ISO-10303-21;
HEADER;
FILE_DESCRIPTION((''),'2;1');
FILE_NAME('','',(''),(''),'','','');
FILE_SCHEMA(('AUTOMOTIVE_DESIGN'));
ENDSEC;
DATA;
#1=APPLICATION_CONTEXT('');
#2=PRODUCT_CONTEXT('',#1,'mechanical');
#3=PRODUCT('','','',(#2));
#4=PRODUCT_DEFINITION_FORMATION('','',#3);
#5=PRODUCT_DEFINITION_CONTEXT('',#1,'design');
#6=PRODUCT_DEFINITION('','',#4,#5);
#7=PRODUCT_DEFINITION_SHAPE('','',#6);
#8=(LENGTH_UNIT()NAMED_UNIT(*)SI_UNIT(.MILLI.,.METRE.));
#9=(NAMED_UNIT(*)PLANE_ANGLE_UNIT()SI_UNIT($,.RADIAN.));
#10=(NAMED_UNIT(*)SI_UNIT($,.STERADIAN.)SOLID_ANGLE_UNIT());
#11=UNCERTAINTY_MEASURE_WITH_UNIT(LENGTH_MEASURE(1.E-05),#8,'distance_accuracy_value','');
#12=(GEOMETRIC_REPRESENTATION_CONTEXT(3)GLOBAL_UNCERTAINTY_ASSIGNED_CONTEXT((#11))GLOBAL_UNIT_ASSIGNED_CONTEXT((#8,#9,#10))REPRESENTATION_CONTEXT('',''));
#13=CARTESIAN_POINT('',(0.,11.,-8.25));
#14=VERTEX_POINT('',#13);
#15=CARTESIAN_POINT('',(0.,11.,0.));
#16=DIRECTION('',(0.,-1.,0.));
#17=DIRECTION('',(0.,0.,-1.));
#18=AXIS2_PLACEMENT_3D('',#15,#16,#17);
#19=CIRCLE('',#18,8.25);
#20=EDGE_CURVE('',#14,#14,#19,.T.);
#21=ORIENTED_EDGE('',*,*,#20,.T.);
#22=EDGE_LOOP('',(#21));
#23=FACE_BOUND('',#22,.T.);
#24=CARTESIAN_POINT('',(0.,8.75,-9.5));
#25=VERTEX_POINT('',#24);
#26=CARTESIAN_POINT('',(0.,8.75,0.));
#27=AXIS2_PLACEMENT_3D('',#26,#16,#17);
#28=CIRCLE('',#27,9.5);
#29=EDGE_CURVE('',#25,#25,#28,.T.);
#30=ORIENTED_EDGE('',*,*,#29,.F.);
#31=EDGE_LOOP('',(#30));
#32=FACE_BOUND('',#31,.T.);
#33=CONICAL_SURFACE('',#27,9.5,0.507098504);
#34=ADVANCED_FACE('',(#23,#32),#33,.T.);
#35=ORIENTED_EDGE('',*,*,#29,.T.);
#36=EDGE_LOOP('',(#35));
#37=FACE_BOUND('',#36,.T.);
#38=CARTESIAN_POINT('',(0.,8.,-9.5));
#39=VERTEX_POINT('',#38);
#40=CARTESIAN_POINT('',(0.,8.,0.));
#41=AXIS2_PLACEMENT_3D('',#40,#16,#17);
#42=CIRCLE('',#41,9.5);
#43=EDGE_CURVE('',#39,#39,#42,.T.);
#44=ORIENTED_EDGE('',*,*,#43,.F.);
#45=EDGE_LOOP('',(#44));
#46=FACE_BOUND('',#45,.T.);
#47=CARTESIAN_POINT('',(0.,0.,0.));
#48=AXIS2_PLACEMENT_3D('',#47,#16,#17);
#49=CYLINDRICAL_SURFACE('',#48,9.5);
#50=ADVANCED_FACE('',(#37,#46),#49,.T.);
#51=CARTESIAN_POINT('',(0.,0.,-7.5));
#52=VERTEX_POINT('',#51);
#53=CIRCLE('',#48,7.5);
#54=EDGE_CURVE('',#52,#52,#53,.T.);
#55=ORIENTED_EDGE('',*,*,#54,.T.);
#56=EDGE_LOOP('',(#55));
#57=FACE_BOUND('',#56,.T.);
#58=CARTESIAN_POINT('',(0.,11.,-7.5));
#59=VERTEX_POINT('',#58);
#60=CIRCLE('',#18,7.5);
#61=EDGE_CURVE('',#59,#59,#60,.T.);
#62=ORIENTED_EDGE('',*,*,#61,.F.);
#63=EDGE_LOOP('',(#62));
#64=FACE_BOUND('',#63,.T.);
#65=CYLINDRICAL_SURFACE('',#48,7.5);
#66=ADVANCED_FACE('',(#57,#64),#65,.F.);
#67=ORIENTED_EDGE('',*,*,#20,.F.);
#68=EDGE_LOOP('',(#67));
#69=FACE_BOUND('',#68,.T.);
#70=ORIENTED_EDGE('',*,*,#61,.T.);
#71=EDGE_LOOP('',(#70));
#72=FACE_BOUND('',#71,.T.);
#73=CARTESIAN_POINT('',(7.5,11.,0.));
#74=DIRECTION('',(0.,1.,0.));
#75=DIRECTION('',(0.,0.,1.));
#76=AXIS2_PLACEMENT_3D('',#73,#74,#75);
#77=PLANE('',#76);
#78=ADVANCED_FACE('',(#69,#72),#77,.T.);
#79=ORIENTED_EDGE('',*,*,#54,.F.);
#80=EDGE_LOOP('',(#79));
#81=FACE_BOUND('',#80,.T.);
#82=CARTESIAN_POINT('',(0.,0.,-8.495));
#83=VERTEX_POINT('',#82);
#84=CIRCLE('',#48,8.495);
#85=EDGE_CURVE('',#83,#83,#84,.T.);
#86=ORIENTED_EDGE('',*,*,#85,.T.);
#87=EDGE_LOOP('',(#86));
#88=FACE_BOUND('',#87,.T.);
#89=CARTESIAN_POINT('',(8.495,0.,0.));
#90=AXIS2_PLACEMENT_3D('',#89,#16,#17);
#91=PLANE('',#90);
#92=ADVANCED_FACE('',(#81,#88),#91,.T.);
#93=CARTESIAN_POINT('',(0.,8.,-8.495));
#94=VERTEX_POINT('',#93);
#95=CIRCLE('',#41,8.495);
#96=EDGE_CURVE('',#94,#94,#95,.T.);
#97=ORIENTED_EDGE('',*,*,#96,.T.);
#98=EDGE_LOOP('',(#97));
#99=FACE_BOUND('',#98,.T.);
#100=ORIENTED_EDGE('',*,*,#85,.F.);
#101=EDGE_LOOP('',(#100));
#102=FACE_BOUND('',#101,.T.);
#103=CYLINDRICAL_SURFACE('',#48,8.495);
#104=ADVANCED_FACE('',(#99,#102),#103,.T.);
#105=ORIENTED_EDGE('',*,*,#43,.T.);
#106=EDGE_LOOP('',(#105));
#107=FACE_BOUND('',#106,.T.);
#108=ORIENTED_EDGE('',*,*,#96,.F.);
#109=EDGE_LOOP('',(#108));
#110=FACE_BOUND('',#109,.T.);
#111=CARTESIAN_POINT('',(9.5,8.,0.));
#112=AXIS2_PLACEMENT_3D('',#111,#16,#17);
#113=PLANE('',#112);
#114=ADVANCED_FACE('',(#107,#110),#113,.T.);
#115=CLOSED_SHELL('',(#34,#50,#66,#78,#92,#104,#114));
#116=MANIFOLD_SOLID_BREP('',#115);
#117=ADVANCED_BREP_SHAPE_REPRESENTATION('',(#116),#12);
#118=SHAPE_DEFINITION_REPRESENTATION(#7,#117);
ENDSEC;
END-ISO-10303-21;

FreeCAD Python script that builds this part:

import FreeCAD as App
import Part
import Sketcher
from FreeCAD import Vector
Q = App.Units.Quantity

doc = App.newDocument("Part")
body = doc.addObject("PartDesign::Body", "Body")

sketch1 = body.newObject("Sketcher::SketchObject", "Sketch")
sketch1.AttachmentSupport = (doc.getObject("XY_Plane"), [""])
sketch1.MapMode = "FlatFace"
sketch1.addGeometry([
    Part.LineSegment(Vector(7.5, 11, 0), Vector(7.5, 0, 0)),
    Part.LineSegment(Vector(7.5, 0, 0), Vector(8.5, 0, 0)),
    Part.LineSegment(Vector(8.5, 0, 0), Vector(8.5, 8, 0)),
    Part.LineSegment(Vector(8.5, 8, 0), Vector(9.5, 8, 0)),
    Part.LineSegment(Vector(9.5, 8, 0), Vector(9.5, 8.8, 0)),
    Part.LineSegment(Vector(9.5, 8.8, 0), Vector(8.2, 11, 0)),
    Part.LineSegment(Vector(8.2, 11, 0), Vector(7.5, 11, 0)),
], False)
sketch1.addConstraint([
    Sketcher.Constraint("Coincident", 0, 2, 1, 1),
    Sketcher.Constraint("Coincident", 1, 2, 2, 1),
    Sketcher.Constraint("Coincident", 2, 2, 3, 1),
    Sketcher.Constraint("Coincident", 3, 2, 4, 1),
    Sketcher.Constraint("Coincident", 4, 2, 5, 1),
    Sketcher.Constraint("Coincident", 5, 2, 6, 1),
    Sketcher.Constraint("Coincident", 6, 2, 0, 1),
    Sketcher.Constraint("Vertical", 0),
    Sketcher.Constraint("Horizontal", 1),
    Sketcher.Constraint("Vertical", 2),
    Sketcher.Constraint("Horizontal", 3),
    Sketcher.Constraint("Vertical", 4),
    Sketcher.Constraint("Horizontal", 6),
    Sketcher.Constraint("PointOnObject", 0, 2, -1),
    Sketcher.Constraint("Equal", 6, 4),
    Sketcher.Constraint("DistanceY", 0, 2, 0, 1, Q("11 mm")),
    Sketcher.Constraint("DistanceY", 2, 1, 2, 2, Q("8 mm")),
    Sketcher.Constraint("DistanceX", 0, 2, 3, 2, Q("2 mm")),
    Sketcher.Constraint("DistanceX", 6, 2, 6, 1, Q("0.75 mm")),
    Sketcher.Constraint("DistanceX", -1, 1, 0, 2, Q("7.5 mm")),
    Sketcher.Constraint("DistanceX", 1, 1, 1, 2, Q("0.995 mm")),
])
revolution = body.newObject("PartDesign::Revolution", "Revolution")
revolution.Profile = sketch1
revolution.ReferenceAxis = (sketch1, ["V_Axis"])
revolution.Angle = 360

doc.recompute()
